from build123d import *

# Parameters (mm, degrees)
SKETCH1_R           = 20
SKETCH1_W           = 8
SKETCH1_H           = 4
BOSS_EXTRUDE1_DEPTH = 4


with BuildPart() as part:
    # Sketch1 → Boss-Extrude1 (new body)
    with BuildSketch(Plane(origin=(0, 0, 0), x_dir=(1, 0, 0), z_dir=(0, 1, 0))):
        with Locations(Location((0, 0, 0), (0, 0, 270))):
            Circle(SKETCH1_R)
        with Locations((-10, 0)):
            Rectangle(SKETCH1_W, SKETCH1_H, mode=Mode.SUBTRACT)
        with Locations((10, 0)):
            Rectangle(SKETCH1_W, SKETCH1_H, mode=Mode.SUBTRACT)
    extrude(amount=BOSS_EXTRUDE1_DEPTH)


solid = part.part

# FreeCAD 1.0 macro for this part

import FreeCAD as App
import Part
import Sketcher

V = App.Vector

doc = App.newDocument("Part")
body = doc.addObject("PartDesign::Body", "Body")

# Sketch on XZ plane
sketch1 = doc.addObject("Sketcher::SketchObject", "Sketch")
body.addObject(sketch1)
sketch1.AttachmentSupport = (doc.XZ_Plane, [""])
sketch1.MapMode = "FlatFace"
sketch1.addGeometry(Part.Circle(V(0, 0, 0), V(0, 0, 1), 20), False)
sketch1.addGeometry(Part.LineSegment(V(-6, 2, 0), V(-14, 2, 0)), False)
sketch1.addGeometry(Part.LineSegment(V(-14, 2, 0), V(-14, -2, 0)), False)
sketch1.addGeometry(Part.LineSegment(V(-14, -2, 0), V(-6, -2, 0)), False)
sketch1.addGeometry(Part.LineSegment(V(-6, -2, 0), V(-6, 2, 0)), False)
sketch1.addGeometry(Part.LineSegment(V(14, 2, 0), V(6, 2, 0)), False)
sketch1.addGeometry(Part.LineSegment(V(6, 2, 0), V(6, -2, 0)), False)
sketch1.addGeometry(Part.LineSegment(V(6, -2, 0), V(14, -2, 0)), False)
sketch1.addGeometry(Part.LineSegment(V(14, -2, 0), V(14, 2, 0)), False)
sketch1.addConstraint(Sketcher.Constraint("Coincident", 1, 2, 2, 1))
sketch1.addConstraint(Sketcher.Constraint("Coincident", 2, 2, 3, 1))
sketch1.addConstraint(Sketcher.Constraint("Coincident", 3, 2, 4, 1))
sketch1.addConstraint(Sketcher.Constraint("Coincident", 4, 2, 1, 1))
sketch1.addConstraint(Sketcher.Constraint("Coincident", 5, 2, 6, 1))
sketch1.addConstraint(Sketcher.Constraint("Coincident", 6, 2, 7, 1))
sketch1.addConstraint(Sketcher.Constraint("Coincident", 7, 2, 8, 1))
sketch1.addConstraint(Sketcher.Constraint("Coincident", 8, 2, 5, 1))
sketch1.addConstraint(Sketcher.Constraint("Horizontal", 1))
sketch1.addConstraint(Sketcher.Constraint("Vertical", 2))
sketch1.addConstraint(Sketcher.Constraint("Horizontal", 3))
sketch1.addConstraint(Sketcher.Constraint("Vertical", 4))
sketch1.addConstraint(Sketcher.Constraint("Horizontal", 5))
sketch1.addConstraint(Sketcher.Constraint("Vertical", 6))
sketch1.addConstraint(Sketcher.Constraint("Horizontal", 7))
sketch1.addConstraint(Sketcher.Constraint("Vertical", 8))
sketch1.addConstraint(Sketcher.Constraint("Coincident", 0, 3, -1, 1))
sketch1.addConstraint(Sketcher.Constraint("Symmetric", 3, 2, 5, 2, -1, 1))
sketch1.addConstraint(Sketcher.Constraint("Symmetric", 1, 2, 7, 2, -1, 1))
sketch1.addConstraint(Sketcher.Constraint("Horizontal", 4, 2, 5, 2))
sketch1.addConstraint(Sketcher.Constraint("Diameter", 0, 40.0))
sketch1.addConstraint(Sketcher.Constraint("DistanceX", 1, 2, 1, 1, 8.0))
sketch1.addConstraint(Sketcher.Constraint("DistanceY", 2, 2, 2, 1, 4.0))
sketch1.addConstraint(Sketcher.Constraint("DistanceX", 1, 2, -1, 1, 14.0))
pad1 = doc.addObject("PartDesign::Pad", "Pad")
body.addObject(pad1)
pad1.Profile = sketch1
pad1.Length = 4
pad1.Reversed = True

doc.recompute()
